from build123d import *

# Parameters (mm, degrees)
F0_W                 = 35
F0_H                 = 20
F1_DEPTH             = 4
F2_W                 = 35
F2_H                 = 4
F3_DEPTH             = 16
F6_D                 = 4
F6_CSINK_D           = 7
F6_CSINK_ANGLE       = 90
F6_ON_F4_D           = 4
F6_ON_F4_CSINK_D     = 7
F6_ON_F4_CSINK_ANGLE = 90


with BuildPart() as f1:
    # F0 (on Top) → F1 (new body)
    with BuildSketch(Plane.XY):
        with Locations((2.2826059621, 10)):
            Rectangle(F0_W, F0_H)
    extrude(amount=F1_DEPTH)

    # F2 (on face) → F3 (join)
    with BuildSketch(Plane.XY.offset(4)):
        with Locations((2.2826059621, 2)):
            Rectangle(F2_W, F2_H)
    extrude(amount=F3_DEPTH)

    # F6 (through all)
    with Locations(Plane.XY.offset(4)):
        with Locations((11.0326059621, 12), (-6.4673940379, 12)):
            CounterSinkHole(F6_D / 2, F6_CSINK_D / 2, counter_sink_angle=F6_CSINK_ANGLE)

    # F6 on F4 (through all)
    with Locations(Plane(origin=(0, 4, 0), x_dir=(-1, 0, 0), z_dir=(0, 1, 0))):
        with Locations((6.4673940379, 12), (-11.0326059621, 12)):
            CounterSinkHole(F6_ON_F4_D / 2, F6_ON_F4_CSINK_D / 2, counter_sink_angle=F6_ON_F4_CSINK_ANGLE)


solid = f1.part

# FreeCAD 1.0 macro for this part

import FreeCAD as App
import Part
import Sketcher

V = App.Vector


def add_polygon(sketch, points):
    """Adds a closed chain of lines whose ends are joined by coincident constraints."""
    first, n = sketch.GeometryCount, len(points)
    for a, b in zip(points, points[1:] + points[:1]):
        sketch.addGeometry(Part.LineSegment(App.Vector(*a, 0), App.Vector(*b, 0)), False)
    for i in range(n):
        sketch.addConstraint(Sketcher.Constraint("Coincident", first + i, 2, first + (i + 1) % n, 1))

doc = App.newDocument("Part")
body = doc.addObject("PartDesign::Body", "Body")

# Sketch on XY plane
sketch1 = body.newObject("Sketcher::SketchObject", "Sketch")
sketch1.AttachmentSupport = (doc.getObject("XY_Plane"), [""])
sketch1.MapMode = "FlatFace"
add_polygon(sketch1, [(-15, 20), (-15, 0), (20, 0), (20, 20)])  # lines 0-3
sketch1.addConstraint(Sketcher.Constraint("Vertical", 0))
sketch1.addConstraint(Sketcher.Constraint("Horizontal", 1))
sketch1.addConstraint(Sketcher.Constraint("Vertical", 2))
sketch1.addConstraint(Sketcher.Constraint("Horizontal", 3))
sketch1.addConstraint(Sketcher.Constraint("PointOnObject", 0, 2, -1))
sketch1.addConstraint(Sketcher.Constraint("DistanceX", 1, 1, 1, 2, 35.0))
sketch1.addConstraint(Sketcher.Constraint("DistanceY", 0, 2, 0, 1, 20.0))
sketch1.addConstraint(Sketcher.Constraint("DistanceX", 0, 2, -1, 1, 15.217394))
pad1 = body.newObject("PartDesign::Pad", "Pad")
pad1.Profile = sketch1
pad1.Length = 4

# Sketch on XY plane
sketch2 = body.newObject("Sketcher::SketchObject", "Sketch001")
sketch2.AttachmentSupport = (doc.getObject("XY_Plane"), [""])
sketch2.MapMode = "FlatFace"
sketch2.AttachmentOffset = App.Placement(V(0, 0, 4), App.Rotation())
add_polygon(sketch2, [(-15.2, 4), (-15.2, 0), (19.8, 0), (19.8, 4)])  # lines 0-3
sketch2.addConstraint(Sketcher.Constraint("Vertical", 0))
sketch2.addConstraint(Sketcher.Constraint("Horizontal", 1))
sketch2.addConstraint(Sketcher.Constraint("Vertical", 2))
sketch2.addConstraint(Sketcher.Constraint("Horizontal", 3))
sketch2.addConstraint(Sketcher.Constraint("PointOnObject", 0, 2, -1))
sketch2.addConstraint(Sketcher.Constraint("DistanceX", 1, 1, 1, 2, 35.0))
sketch2.addConstraint(Sketcher.Constraint("DistanceY", 0, 2, 0, 1, 4.0))
sketch2.addConstraint(Sketcher.Constraint("DistanceX", 0, 2, -1, 1, 15.217394))
pad2 = body.newObject("PartDesign::Pad", "Pad001")
pad2.Profile = sketch2
pad2.Length = 16

# Sketch on XY plane
sketch3 = body.newObject("Sketcher::SketchObject", "Sketch002")
sketch3.AttachmentSupport = (doc.getObject("XY_Plane"), [""])
sketch3.MapMode = "FlatFace"
sketch3.AttachmentOffset = App.Placement(V(0, 0, 4), App.Rotation())
sketch3.addGeometry(Part.Circle(V(11, 12, 0), V(0, 0, 1), 2), False)
sketch3.addGeometry(Part.Circle(V(-6.5, 12, 0), V(0, 0, 1), 2), False)
sketch3.addConstraint(Sketcher.Constraint("Equal", 0, 1))
sketch3.addConstraint(Sketcher.Constraint("Horizontal", 0, 3, 1, 3))
sketch3.addConstraint(Sketcher.Constraint("Diameter", 0, 4.0))
sketch3.addConstraint(Sketcher.Constraint("DistanceY", -1, 1, 0, 3, 12.0))
sketch3.addConstraint(Sketcher.Constraint("DistanceX", 1, 3, 0, 3, 17.5))
sketch3.addConstraint(Sketcher.Constraint("DistanceX", -1, 1, 0, 3, 11.032606))
doc.recompute()
hole = body.newObject("PartDesign::Hole", "Hole")
hole.Profile = sketch3
hole.ThreadType = "None"
hole.Diameter = 4
hole.DepthType = "ThroughAll"
hole.HoleCutType = "Countersink"
hole.HoleCutDiameter = 7
hole.HoleCutCountersinkAngle = 90

# Sketch on XZ plane
sketch4 = body.newObject("Sketcher::SketchObject", "Sketch003")
sketch4.AttachmentSupport = (doc.getObject("XZ_Plane"), [""])
sketch4.MapMode = "FlatFace"
sketch4.AttachmentOffset = App.Placement(V(0, 0, -4), App.Rotation())
sketch4.addGeometry(Part.Circle(V(-6.5, 12, 0), V(0, 0, 1), 2), False)
sketch4.addGeometry(Part.Circle(V(11, 12, 0), V(0, 0, 1), 2), False)
sketch4.addConstraint(Sketcher.Constraint("Equal", 0, 1))
sketch4.addConstraint(Sketcher.Constraint("Horizontal", 0, 3, 1, 3))
sketch4.addConstraint(Sketcher.Constraint("Diameter", 0, 4.0))
sketch4.addConstraint(Sketcher.Constraint("DistanceY", -1, 1, 0, 3, 12.0))
sketch4.addConstraint(Sketcher.Constraint("DistanceX", 0, 3, 1, 3, 17.5))
sketch4.addConstraint(Sketcher.Constraint("DistanceX", 0, 3, -1, 1, 6.467394))
doc.recompute()
hole2 = body.newObject("PartDesign::Hole", "Hole001")
hole2.Profile = sketch4
hole2.ThreadType = "None"
hole2.Diameter = 4
hole2.DepthType = "ThroughAll"
hole2.HoleCutType = "Countersink"
hole2.HoleCutDiameter = 7
hole2.HoleCutCountersinkAngle = 90
hole2.Reversed = True

doc.recompute()
